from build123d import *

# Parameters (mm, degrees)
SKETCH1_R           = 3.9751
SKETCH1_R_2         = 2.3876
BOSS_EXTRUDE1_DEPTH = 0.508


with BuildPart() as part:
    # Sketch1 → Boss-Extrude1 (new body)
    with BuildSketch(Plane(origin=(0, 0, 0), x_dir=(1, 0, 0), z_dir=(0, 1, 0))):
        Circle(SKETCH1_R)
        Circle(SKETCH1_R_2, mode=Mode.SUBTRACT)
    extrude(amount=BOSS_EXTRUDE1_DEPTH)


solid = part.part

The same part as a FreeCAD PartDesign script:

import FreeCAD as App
import Part
import Sketcher

V = App.Vector
Q = App.Units.Quantity

doc = App.newDocument("Part")
body = doc.addObject("PartDesign::Body", "Body")

sketch1 = body.newObject("Sketcher::SketchObject", "Sketch")
sketch1.AttachmentSupport = (doc.getObject("XZ_Plane"), [""])
sketch1.MapMode = "FlatFace"
sketch1.addGeometry([
    Part.Circle(V(0, 0, 0), V(0, 0, 1), 4),
    Part.Circle(V(0, 0, 0), V(0, 0, 1), 2.4),
], False)
sketch1.addConstraint([
    Sketcher.Constraint("Coincident", 0, 3, -1, 1),
    Sketcher.Constraint("Coincident", 1, 3, -1, 1),
    Sketcher.Constraint("Diameter", 0, Q("0.313 in")),
    Sketcher.Constraint("Diameter", 1, Q("0.188 in")),
])
pad1 = body.newObject("PartDesign::Pad", "Pad")
pad1.Profile = sketch1
pad1.Length = Q("0.02 in")
pad1.Reversed = True

doc.recompute()
